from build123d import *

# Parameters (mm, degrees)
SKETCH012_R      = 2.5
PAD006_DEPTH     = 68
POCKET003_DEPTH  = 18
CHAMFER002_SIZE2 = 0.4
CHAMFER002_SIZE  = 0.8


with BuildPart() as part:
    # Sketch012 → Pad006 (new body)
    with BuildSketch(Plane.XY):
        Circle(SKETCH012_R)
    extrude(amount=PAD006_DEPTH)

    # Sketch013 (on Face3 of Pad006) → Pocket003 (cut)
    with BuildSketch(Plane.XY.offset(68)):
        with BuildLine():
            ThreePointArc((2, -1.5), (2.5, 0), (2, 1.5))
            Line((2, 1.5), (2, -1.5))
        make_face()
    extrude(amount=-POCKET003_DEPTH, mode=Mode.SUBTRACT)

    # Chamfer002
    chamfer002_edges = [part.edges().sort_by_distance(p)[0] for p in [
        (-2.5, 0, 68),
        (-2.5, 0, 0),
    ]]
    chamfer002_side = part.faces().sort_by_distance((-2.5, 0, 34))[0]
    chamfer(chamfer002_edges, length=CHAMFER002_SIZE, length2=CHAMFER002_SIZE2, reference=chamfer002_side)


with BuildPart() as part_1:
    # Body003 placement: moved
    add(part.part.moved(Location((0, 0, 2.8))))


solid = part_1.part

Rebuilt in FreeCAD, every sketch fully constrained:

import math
import FreeCAD as App
import Part
import Sketcher
from FreeCAD import Vector


def edges_at(feature, points):
    """Names of the edges that pass closest to the given points."""
    edges = feature.Shape.Edges
    near = lambda p: min(range(len(edges)), key=lambda i: edges[i].distToShape(Part.Vertex(*p))[0])
    return sorted({f"Edge{near(p) + 1}" for p in points})

doc = App.newDocument("Part")
body = doc.addObject("PartDesign::Body", "Body")

sketch1 = doc.addObject("Sketcher::SketchObject", "Sketch")
body.addObject(sketch1)
sketch1.AttachmentSupport = (doc.XY_Plane, [""])
sketch1.MapMode = "FlatFace"
sketch1.addGeometry(Part.Circle(Vector(0, 0, 0), Vector(0, 0, 1), 2.5), False)
sketch1.addConstraint(Sketcher.Constraint("Coincident", 0, 3, -1, 1))
sketch1.addConstraint(Sketcher.Constraint("Diameter", 0, 5.0))
pad1 = doc.addObject("PartDesign::Pad", "Pad")
body.addObject(pad1)
pad1.Profile = sketch1
pad1.Length = 68

sketch2 = doc.addObject("Sketcher::SketchObject", "Sketch001")
body.addObject(sketch2)
sketch2.AttachmentSupport = (doc.XY_Plane, [""])
sketch2.MapMode = "FlatFace"
sketch2.AttachmentOffset = App.Placement(Vector(0, 0, 68), App.Rotation())
sketch2.addGeometry(Part.ArcOfCircle(Part.Circle(Vector(0, 0, 0), Vector(0, 0, 1), 2.5), math.radians(-36.869898), math.radians(36.869898)), False)
sketch2.addGeometry(Part.LineSegment(Vector(2, 1.5, 0), Vector(2, -1.5, 0)), False)
sketch2.addConstraint(Sketcher.Constraint("Coincident", 0, 1, 1, 2))
sketch2.addConstraint(Sketcher.Constraint("Coincident", 1, 1, 0, 2))
sketch2.addConstraint(Sketcher.Constraint("Vertical", 1))
sketch2.addConstraint(Sketcher.Constraint("Coincident", 0, 3, -1, 1))
sketch2.addConstraint(Sketcher.Constraint("Radius", 0, 2.5))
sketch2.addConstraint(Sketcher.Constraint("DistanceY", 1, 2, 1, 1, 3.0))
pocket1 = doc.addObject("PartDesign::Pocket", "Pocket")
body.addObject(pocket1)
pocket1.Profile = sketch2
pocket1.Length = 18
doc.recompute()

chamfer = doc.addObject("PartDesign::Chamfer", "Chamfer")
body.addObject(chamfer)
chamfer.Base = (pocket1, edges_at(pocket1, [(-2.5, 0, 68), (-2.5, 0, 0)]))
chamfer.ChamferType = "Two distances"
chamfer.Size = 0.8
chamfer.Size2 = 0.4
body2 = doc.addObject("PartDesign::Body", "Body001")
doc.recompute()

body.Placement = App.Placement(Vector(0, 0, 2.8), App.Rotation(Vector(0, 0, 1), 0))
boolean = doc.addObject("PartDesign::Boolean", "Boolean")
body2.addObject(boolean)
boolean.Type = "Fuse"
boolean.addObjects([body])

doc.recompute()
